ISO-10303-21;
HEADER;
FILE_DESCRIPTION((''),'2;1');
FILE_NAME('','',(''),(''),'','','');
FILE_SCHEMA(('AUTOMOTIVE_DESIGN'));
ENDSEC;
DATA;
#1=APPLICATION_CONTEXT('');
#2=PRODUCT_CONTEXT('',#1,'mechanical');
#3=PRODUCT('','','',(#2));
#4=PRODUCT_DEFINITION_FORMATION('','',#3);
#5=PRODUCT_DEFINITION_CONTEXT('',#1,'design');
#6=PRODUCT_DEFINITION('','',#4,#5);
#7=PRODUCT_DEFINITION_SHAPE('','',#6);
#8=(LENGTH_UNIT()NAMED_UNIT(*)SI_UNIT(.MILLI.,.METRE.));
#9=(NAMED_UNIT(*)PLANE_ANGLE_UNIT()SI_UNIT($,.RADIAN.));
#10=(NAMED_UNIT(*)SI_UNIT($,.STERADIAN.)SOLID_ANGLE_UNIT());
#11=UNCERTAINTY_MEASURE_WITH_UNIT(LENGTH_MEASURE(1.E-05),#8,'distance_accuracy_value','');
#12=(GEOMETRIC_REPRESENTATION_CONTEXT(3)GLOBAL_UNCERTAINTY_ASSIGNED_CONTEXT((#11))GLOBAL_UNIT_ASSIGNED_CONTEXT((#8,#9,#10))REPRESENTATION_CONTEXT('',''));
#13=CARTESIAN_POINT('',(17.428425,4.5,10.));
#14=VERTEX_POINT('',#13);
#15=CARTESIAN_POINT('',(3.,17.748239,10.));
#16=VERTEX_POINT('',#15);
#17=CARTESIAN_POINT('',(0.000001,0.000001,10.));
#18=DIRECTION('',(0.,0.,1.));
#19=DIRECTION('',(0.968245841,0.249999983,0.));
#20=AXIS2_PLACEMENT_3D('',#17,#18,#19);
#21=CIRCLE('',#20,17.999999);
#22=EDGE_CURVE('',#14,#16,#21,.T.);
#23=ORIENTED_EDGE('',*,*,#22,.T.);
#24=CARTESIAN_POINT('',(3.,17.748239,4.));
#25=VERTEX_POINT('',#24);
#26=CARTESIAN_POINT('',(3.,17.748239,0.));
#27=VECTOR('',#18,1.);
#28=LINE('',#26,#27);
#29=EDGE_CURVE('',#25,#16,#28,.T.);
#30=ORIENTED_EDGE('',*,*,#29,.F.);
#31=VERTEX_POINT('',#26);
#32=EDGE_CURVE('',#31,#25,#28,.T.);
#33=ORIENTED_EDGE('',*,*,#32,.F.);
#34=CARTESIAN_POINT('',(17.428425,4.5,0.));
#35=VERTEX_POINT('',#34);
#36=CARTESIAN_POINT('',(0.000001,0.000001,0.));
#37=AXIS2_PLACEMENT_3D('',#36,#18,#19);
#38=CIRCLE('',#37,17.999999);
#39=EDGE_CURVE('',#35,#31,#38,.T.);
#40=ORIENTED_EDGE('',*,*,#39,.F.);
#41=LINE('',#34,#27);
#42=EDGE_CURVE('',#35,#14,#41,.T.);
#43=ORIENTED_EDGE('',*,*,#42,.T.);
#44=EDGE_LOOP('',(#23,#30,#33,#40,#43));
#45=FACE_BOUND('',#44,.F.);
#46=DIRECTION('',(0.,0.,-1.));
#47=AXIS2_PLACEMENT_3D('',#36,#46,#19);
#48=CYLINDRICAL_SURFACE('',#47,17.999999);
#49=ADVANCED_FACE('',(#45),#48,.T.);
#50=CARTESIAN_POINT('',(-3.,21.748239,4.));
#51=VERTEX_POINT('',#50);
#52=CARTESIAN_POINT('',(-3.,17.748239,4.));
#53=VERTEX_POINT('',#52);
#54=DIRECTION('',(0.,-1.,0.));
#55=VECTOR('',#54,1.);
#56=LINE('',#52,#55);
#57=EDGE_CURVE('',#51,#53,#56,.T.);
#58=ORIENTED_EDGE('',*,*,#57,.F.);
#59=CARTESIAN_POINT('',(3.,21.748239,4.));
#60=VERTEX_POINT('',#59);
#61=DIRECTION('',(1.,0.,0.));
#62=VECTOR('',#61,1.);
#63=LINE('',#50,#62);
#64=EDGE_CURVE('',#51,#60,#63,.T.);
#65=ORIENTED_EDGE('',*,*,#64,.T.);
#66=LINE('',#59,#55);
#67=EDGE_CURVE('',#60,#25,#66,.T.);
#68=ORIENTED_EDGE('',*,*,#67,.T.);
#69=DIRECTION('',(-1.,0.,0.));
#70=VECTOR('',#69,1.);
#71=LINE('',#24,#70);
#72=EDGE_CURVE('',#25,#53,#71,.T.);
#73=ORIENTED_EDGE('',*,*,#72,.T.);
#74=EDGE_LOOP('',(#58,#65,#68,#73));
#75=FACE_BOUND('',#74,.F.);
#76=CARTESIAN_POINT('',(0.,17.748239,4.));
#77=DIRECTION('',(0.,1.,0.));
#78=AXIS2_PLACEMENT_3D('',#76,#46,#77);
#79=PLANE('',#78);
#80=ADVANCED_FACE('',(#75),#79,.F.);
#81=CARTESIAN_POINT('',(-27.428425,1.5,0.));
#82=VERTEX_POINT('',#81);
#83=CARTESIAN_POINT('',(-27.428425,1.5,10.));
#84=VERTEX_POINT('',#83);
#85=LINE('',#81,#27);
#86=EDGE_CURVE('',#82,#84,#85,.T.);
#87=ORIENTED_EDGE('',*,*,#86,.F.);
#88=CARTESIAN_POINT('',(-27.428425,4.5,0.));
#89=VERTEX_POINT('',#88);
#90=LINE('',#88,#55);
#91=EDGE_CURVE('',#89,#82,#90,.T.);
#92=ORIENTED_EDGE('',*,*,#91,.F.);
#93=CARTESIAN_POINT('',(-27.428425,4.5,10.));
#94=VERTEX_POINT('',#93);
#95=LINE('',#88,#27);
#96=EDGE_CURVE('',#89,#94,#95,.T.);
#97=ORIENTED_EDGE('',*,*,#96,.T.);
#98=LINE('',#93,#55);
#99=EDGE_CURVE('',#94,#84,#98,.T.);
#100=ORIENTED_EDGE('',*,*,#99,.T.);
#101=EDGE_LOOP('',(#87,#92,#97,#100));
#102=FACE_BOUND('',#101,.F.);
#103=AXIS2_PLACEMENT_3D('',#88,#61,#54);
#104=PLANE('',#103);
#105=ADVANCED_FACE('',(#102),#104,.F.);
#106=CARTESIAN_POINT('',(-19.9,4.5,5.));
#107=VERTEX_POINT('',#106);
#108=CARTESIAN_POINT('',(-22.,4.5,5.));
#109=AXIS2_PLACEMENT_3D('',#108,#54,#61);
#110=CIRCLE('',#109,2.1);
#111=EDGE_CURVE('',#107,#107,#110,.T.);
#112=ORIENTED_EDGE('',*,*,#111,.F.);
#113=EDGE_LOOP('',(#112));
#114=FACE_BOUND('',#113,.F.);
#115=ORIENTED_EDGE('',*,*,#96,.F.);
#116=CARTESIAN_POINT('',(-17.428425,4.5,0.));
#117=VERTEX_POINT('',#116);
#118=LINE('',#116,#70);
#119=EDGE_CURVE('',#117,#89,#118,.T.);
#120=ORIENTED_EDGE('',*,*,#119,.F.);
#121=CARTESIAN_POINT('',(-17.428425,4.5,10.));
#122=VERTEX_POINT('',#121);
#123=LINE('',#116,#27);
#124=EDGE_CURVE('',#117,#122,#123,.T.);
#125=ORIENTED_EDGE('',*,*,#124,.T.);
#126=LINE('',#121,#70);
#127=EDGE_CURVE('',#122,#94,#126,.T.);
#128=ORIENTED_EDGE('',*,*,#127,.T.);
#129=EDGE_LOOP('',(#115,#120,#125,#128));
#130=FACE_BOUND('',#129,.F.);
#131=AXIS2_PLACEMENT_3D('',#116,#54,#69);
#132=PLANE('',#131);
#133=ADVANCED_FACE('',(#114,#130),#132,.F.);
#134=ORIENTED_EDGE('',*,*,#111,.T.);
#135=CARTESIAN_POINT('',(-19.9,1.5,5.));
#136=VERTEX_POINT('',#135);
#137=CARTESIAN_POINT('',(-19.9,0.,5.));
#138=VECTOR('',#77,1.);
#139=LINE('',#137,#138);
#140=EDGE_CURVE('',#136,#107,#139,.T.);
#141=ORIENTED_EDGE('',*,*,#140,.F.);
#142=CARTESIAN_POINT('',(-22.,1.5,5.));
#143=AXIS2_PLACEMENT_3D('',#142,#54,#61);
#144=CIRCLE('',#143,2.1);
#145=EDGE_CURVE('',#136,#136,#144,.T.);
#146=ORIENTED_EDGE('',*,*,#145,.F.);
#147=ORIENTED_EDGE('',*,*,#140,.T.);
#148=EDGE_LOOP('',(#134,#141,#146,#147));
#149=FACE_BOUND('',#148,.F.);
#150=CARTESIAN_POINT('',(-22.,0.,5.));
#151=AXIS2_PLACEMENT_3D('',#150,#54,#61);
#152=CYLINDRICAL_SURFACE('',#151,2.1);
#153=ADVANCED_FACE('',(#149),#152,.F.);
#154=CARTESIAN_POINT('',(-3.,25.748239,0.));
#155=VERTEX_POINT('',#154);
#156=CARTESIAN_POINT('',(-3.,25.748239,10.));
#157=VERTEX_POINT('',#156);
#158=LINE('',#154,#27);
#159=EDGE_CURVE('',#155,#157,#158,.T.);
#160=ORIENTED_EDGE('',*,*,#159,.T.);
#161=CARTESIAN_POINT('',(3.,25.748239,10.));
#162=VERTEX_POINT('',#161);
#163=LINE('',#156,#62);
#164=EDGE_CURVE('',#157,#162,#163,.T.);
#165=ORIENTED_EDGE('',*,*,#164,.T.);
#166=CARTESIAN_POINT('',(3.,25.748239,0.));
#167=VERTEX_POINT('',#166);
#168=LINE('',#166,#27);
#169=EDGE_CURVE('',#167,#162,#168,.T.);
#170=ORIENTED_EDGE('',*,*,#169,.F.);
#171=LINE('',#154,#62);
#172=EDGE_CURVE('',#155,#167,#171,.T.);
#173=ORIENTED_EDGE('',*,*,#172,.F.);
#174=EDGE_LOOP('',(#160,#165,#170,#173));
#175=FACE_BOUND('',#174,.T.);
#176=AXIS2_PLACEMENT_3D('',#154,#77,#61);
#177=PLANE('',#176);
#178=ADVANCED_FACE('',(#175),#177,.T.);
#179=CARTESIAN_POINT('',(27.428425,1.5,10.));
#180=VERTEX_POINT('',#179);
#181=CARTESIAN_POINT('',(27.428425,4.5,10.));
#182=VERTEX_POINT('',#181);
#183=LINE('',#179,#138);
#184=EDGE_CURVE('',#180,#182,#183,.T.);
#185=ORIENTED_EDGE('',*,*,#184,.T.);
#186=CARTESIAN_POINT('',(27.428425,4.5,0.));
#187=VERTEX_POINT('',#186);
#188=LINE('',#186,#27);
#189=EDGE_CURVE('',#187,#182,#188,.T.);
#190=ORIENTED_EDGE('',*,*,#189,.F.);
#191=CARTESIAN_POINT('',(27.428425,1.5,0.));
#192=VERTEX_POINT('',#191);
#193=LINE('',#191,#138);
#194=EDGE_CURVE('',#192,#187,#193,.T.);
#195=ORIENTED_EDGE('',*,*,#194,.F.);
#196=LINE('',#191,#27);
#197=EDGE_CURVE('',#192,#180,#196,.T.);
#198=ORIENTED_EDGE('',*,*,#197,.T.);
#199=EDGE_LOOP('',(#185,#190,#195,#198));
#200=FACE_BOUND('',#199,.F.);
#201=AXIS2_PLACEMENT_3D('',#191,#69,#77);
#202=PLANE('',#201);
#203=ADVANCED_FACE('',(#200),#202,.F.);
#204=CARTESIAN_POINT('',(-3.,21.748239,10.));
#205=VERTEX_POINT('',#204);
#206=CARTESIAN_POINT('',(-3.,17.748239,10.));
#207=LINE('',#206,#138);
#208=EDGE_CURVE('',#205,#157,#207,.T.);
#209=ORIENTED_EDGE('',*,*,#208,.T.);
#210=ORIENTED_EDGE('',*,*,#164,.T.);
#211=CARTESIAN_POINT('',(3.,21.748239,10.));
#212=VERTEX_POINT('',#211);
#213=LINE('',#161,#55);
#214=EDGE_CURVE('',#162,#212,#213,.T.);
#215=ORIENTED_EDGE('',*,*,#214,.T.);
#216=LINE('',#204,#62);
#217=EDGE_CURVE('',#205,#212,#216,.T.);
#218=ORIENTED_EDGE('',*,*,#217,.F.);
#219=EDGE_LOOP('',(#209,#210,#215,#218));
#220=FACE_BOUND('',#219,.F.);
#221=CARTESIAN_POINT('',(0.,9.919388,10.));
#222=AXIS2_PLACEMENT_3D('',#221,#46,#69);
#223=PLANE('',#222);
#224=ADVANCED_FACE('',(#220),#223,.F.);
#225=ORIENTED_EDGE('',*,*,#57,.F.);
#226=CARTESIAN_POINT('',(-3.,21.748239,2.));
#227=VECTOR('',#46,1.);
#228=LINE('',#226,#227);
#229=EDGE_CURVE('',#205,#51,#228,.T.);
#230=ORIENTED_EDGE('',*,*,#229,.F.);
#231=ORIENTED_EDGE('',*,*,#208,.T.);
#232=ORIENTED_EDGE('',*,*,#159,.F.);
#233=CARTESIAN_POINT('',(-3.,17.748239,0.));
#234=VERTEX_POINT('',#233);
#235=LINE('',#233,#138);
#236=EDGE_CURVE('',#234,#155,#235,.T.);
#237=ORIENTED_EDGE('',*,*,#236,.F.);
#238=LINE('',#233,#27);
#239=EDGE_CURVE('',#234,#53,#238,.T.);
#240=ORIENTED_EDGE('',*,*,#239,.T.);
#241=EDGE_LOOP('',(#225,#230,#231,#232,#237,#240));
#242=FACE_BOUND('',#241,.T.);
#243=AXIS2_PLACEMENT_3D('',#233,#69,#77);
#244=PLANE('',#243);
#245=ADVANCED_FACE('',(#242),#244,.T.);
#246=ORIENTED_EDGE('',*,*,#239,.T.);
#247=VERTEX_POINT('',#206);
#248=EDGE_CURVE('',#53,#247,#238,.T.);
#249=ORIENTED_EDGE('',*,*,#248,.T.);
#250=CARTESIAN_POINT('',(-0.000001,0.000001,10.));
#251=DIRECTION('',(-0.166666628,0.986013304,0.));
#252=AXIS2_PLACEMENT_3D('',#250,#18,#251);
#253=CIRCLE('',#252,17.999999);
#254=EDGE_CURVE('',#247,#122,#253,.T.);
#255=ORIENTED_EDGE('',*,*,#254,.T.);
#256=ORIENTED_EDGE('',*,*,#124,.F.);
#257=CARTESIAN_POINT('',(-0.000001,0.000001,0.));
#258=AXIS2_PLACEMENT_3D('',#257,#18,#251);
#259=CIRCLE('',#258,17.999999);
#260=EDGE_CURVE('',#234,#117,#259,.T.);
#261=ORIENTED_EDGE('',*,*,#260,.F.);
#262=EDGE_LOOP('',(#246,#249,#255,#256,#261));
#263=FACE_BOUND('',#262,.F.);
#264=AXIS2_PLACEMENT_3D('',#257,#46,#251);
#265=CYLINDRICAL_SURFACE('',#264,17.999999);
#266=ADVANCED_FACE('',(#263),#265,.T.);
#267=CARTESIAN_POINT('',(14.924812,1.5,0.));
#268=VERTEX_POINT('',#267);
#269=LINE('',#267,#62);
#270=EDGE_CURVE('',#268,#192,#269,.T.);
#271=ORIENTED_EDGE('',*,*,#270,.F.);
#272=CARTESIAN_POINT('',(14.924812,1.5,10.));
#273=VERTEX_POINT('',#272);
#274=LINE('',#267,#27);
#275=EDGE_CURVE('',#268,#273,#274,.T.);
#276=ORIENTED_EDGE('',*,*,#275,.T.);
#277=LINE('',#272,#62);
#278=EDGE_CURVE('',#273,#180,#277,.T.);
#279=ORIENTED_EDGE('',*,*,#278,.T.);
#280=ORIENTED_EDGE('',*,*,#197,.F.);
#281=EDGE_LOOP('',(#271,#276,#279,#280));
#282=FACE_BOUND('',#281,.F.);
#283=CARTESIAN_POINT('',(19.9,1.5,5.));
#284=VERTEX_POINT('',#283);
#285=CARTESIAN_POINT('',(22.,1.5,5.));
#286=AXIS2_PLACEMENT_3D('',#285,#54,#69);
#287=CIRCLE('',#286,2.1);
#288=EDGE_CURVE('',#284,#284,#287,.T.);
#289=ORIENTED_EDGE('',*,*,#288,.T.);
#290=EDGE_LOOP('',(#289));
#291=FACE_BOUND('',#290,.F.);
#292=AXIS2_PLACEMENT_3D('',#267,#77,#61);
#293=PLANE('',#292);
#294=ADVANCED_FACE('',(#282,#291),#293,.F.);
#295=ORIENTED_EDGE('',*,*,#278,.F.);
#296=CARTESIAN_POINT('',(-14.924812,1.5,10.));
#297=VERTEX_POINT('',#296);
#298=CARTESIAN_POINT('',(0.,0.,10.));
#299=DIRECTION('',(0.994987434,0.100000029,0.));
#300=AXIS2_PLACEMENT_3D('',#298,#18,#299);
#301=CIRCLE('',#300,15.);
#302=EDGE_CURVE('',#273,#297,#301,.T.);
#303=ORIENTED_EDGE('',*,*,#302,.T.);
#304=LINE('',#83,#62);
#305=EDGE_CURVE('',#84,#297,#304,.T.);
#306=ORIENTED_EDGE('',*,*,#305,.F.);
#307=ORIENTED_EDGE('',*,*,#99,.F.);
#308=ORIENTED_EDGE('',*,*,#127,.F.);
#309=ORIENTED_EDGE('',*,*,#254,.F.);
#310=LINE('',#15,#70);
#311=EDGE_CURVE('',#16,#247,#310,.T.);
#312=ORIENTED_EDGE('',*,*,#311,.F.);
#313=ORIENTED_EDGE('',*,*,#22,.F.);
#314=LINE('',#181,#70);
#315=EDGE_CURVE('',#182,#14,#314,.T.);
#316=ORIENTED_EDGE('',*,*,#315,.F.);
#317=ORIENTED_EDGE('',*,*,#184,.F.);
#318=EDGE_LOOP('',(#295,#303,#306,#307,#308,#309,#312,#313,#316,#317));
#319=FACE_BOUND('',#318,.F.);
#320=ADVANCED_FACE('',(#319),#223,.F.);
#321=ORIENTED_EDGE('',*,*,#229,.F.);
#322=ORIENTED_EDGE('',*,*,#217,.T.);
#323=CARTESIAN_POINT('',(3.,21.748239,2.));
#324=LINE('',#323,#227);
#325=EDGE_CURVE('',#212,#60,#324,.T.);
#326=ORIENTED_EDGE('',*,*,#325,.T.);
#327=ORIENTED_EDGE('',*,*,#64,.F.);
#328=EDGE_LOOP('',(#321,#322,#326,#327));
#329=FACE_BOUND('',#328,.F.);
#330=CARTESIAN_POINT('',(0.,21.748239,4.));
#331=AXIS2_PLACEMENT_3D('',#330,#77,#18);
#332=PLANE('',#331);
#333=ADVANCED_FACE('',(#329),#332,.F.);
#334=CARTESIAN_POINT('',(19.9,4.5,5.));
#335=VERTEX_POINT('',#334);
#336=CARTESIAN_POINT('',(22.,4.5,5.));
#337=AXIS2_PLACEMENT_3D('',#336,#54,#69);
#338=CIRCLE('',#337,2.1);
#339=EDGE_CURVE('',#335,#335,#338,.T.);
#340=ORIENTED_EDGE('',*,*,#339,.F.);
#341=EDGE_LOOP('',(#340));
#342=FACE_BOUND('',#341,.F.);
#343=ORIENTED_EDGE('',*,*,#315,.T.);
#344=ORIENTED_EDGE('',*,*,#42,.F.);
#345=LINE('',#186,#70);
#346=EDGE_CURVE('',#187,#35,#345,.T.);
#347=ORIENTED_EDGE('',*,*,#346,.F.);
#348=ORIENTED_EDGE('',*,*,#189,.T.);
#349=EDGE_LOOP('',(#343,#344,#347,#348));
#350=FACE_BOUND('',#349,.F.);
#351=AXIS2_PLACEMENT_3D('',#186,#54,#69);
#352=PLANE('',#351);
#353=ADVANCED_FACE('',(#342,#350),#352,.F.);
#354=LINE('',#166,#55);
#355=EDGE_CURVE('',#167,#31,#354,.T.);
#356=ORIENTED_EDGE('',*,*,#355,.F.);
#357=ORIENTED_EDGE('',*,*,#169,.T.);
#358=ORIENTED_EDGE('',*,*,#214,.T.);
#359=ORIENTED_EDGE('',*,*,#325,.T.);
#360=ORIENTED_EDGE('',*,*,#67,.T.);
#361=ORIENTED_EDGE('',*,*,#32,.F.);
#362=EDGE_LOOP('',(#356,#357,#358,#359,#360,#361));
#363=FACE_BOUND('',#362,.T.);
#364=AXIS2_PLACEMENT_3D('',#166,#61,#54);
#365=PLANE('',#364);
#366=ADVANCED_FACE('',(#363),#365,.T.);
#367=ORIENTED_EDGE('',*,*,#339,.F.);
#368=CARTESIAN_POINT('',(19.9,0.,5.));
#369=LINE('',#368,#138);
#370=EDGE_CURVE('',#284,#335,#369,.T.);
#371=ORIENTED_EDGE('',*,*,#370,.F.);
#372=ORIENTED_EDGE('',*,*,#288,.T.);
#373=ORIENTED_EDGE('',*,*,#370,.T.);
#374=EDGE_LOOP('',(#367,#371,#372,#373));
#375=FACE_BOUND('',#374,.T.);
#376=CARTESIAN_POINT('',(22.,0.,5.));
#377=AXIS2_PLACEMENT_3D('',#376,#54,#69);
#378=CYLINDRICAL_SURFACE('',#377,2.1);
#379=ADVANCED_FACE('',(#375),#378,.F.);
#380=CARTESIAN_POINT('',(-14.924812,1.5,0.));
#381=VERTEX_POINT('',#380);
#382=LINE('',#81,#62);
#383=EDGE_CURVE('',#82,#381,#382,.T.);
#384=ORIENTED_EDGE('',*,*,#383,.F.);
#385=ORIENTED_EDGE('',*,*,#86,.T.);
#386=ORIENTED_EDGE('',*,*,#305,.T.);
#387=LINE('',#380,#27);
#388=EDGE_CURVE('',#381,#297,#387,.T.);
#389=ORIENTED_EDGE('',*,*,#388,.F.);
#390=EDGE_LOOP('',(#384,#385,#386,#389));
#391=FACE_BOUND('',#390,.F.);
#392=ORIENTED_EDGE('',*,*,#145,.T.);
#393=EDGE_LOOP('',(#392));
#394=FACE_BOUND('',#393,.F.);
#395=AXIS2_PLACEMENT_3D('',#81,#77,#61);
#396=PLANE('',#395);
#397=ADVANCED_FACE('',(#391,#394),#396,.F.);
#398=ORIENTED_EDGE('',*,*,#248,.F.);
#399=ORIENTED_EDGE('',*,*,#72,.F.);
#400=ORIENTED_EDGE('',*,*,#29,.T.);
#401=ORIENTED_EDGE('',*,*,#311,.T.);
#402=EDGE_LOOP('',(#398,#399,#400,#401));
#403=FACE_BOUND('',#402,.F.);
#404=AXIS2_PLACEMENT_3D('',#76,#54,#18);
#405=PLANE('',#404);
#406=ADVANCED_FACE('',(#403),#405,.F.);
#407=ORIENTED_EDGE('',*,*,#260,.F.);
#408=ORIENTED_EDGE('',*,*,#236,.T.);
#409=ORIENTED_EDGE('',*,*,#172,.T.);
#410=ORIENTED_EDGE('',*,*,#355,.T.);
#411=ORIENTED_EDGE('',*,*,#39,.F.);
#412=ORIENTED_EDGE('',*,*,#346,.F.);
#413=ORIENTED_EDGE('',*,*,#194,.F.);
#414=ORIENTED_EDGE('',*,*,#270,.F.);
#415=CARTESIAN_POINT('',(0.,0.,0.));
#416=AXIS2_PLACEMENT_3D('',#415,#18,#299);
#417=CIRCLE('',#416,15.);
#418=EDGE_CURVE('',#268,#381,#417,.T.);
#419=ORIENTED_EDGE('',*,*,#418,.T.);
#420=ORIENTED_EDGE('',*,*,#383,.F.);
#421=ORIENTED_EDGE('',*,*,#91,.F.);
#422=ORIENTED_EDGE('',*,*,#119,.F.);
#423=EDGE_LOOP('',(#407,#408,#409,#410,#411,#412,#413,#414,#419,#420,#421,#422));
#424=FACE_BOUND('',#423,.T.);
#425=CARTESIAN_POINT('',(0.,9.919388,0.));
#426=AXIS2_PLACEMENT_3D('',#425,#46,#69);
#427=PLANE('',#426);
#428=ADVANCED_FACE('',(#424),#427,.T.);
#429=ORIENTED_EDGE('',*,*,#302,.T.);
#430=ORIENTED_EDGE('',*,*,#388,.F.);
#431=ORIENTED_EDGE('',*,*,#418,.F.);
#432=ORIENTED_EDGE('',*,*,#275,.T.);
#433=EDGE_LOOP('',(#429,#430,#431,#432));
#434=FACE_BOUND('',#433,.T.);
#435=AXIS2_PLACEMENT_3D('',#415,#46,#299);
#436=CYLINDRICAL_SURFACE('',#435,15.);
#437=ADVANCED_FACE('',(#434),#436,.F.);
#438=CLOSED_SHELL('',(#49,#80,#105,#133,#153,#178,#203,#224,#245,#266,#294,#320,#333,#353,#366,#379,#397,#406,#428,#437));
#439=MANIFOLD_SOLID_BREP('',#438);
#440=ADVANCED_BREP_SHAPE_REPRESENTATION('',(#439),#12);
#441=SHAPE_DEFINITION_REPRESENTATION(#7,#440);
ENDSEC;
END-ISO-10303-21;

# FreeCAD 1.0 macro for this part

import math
import FreeCAD as App
import Part
import Sketcher
from FreeCAD import Vector

doc = App.newDocument("Part")
body = doc.addObject("PartDesign::Body", "Body")

# Sketch on XY plane
sketch1 = body.newObject("Sketcher::SketchObject", "Sketch")
sketch1.AttachmentSupport = (doc.getObject("XY_Plane"), [""])
sketch1.MapMode = "FlatFace"
sketch1.addGeometry(Part.ArcOfCircle(Part.Circle(Vector(0, 0, 0), Vector(0, 0, 1), 15), math.radians(5.739172), math.radians(174.260828)), False)
sketch1.addGeometry(Part.LineSegment(Vector(14.924812, 1.5, 0), Vector(27.428425, 1.5, 0)), False)
sketch1.addGeometry(Part.LineSegment(Vector(27.428425, 1.5, 0), Vector(27.428425, 4.5, 0)), False)
sketch1.addGeometry(Part.LineSegment(Vector(27.428425, 4.5, 0), Vector(17.428425, 4.5, 0)), False)
sketch1.addGeometry(Part.ArcOfCircle(Part.Circle(Vector(0.000001, 0.000001, 0), Vector(0, 0, 1), 17.999999), math.radians(14.477511), math.radians(80.405934)), False)
sketch1.addGeometry(Part.LineSegment(Vector(3, 17.748239, 0), Vector(3, 25.748239, 0)), False)
sketch1.addGeometry(Part.LineSegment(Vector(3, 25.748239, 0), Vector(-3, 25.748239, 0)), False)
sketch1.addGeometry(Part.LineSegment(Vector(-3, 25.748239, 0), Vector(-3, 17.748239, 0)), False)
sketch1.addGeometry(Part.ArcOfCircle(Part.Circle(Vector(-0.000001, 0.000001, 0), Vector(0, 0, 1), 17.999999), math.radians(99.594066), math.radians(165.522489)), False)
sketch1.addGeometry(Part.LineSegment(Vector(-17.428425, 4.5, 0), Vector(-27.428425, 4.5, 0)), False)
sketch1.addGeometry(Part.LineSegment(Vector(-27.428425, 4.5, 0), Vector(-27.428425, 1.5, 0)), False)
sketch1.addGeometry(Part.LineSegment(Vector(-27.428425, 1.5, 0), Vector(-14.924812, 1.5, 0)), False)
sketch1.addConstraint(Sketcher.Constraint("Coincident", 0, 1, 1, 1))
sketch1.addConstraint(Sketcher.Constraint("Coincident", 1, 2, 2, 1))
sketch1.addConstraint(Sketcher.Constraint("Coincident", 2, 2, 3, 1))
sketch1.addConstraint(Sketcher.Constraint("Coincident", 3, 2, 4, 1))
sketch1.addConstraint(Sketcher.Constraint("Coincident", 4, 2, 5, 1))
sketch1.addConstraint(Sketcher.Constraint("Coincident", 5, 2, 6, 1))
sketch1.addConstraint(Sketcher.Constraint("Coincident", 6, 2, 7, 1))
sketch1.addConstraint(Sketcher.Constraint("Coincident", 7, 2, 8, 1))
sketch1.addConstraint(Sketcher.Constraint("Coincident", 8, 2, 9, 1))
sketch1.addConstraint(Sketcher.Constraint("Coincident", 9, 2, 10, 1))
sketch1.addConstraint(Sketcher.Constraint("Coincident", 10, 2, 11, 1))
sketch1.addConstraint(Sketcher.Constraint("Coincident", 11, 2, 0, 2))
sketch1.addConstraint(Sketcher.Constraint("Horizontal", 1))
sketch1.addConstraint(Sketcher.Constraint("Vertical", 2))
sketch1.addConstraint(Sketcher.Constraint("Horizontal", 3))
sketch1.addConstraint(Sketcher.Constraint("Vertical", 5))
sketch1.addConstraint(Sketcher.Constraint("Horizontal", 6))
sketch1.addConstraint(Sketcher.Constraint("Vertical", 7))
sketch1.addConstraint(Sketcher.Constraint("Horizontal", 9))
sketch1.addConstraint(Sketcher.Constraint("Vertical", 10))
sketch1.addConstraint(Sketcher.Constraint("Horizontal", 11))
sketch1.addConstraint(Sketcher.Constraint("Coincident", 0, 3, -1, 1))
sketch1.addConstraint(Sketcher.Constraint("Coincident", 4, 3, -1, 1))
sketch1.addConstraint(Sketcher.Constraint("Coincident", 8, 3, -1, 1))
sketch1.addConstraint(Sketcher.Constraint("Equal", 4, 8))
sketch1.addConstraint(Sketcher.Constraint("Symmetric", 2, 2, 9, 2, -2))
sketch1.addConstraint(Sketcher.Constraint("Horizontal", 4, 2, 7, 2))
sketch1.addConstraint(Sketcher.Constraint("Horizontal", 1, 2, 10, 2))
sketch1.addConstraint(Sketcher.Constraint("Radius", 0, 15.0))
sketch1.addConstraint(Sketcher.Constraint("Radius", 4, 17.999999))
sketch1.addConstraint(Sketcher.Constraint("DistanceX", 3, 2, 3, 1, 10.0))
sketch1.addConstraint(Sketcher.Constraint("DistanceX", 6, 2, 6, 1, 6.0))
sketch1.addConstraint(Sketcher.Constraint("DistanceY", 2, 1, 2, 2, 3.0))
sketch1.addConstraint(Sketcher.Constraint("DistanceY", 5, 1, 5, 2, 8.0))
sketch1.addConstraint(Sketcher.Constraint("DistanceY", -1, 1, 0, 1, 1.5))
pad1 = body.newObject("PartDesign::Pad", "Pad")
pad1.Profile = sketch1
pad1.Length = 10

# Sketch on XZ plane
sketch2 = body.newObject("Sketcher::SketchObject", "Sketch001")
sketch2.AttachmentSupport = (doc.getObject("XZ_Plane"), [""])
sketch2.MapMode = "FlatFace"
sketch2.addGeometry(Part.Circle(Vector(-22, 5, 0), Vector(0, 0, 1), 2.1), False)
sketch2.addConstraint(Sketcher.Constraint("Diameter", 0, 4.2))
sketch2.addConstraint(Sketcher.Constraint("DistanceX", 0, 3, -1, 1, 22.0))
sketch2.addConstraint(Sketcher.Constraint("DistanceY", -1, 1, 0, 3, 5.0))
pocket1 = body.newObject("PartDesign::Pocket", "Pocket")
pocket1.Profile = sketch2
pocket1.Type = "ThroughAll"
doc.recompute()

mirrored = body.newObject("PartDesign::Mirrored", "Mirrored")
mirrored.Originals = [pocket1]
mirrored.MirrorPlane = (doc.getObject("YZ_Plane"), [""])
body.Tip = mirrored

# Sketch on YZ plane
sketch3 = body.newObject("Sketcher::SketchObject", "Sketch002")
sketch3.AttachmentSupport = (doc.getObject("YZ_Plane"), [""])
sketch3.MapMode = "FlatFace"
sketch3.addGeometry(Part.LineSegment(Vector(17.748239, 10, 0), Vector(17.748239, 4, 0)), False)
sketch3.addGeometry(Part.LineSegment(Vector(17.748239, 4, 0), Vector(21.748239, 4, 0)), False)
sketch3.addGeometry(Part.LineSegment(Vector(21.748239, 4, 0), Vector(21.748239, 10, 0)), False)
sketch3.addGeometry(Part.LineSegment(Vector(21.748239, 10, 0), Vector(17.748239, 10, 0)), False)
sketch3.addConstraint(Sketcher.Constraint("Coincident", 0, 2, 1, 1))
sketch3.addConstraint(Sketcher.Constraint("Coincident", 1, 2, 2, 1))
sketch3.addConstraint(Sketcher.Constraint("Coincident", 2, 2, 3, 1))
sketch3.addConstraint(Sketcher.Constraint("Coincident", 3, 2, 0, 1))
sketch3.addConstraint(Sketcher.Constraint("Vertical", 0))
sketch3.addConstraint(Sketcher.Constraint("Horizontal", 1))
sketch3.addConstraint(Sketcher.Constraint("Vertical", 2))
sketch3.addConstraint(Sketcher.Constraint("Horizontal", 3))
sketch3.addConstraint(Sketcher.Constraint("DistanceX", 1, 1, 1, 2, 4.0))
sketch3.addConstraint(Sketcher.Constraint("DistanceY", 0, 2, 0, 1, 6.0))
sketch3.addConstraint(Sketcher.Constraint("DistanceY", -1, 1, 0, 2, 4.0))
sketch3.addConstraint(Sketcher.Constraint("DistanceX", -1, 1, 0, 2, 17.748239))
pocket2 = body.newObject("PartDesign::Pocket", "Pocket001")
pocket2.Profile = sketch3
pocket2.Type = "ThroughAll"
pocket2.Midplane = True

doc.recompute()
